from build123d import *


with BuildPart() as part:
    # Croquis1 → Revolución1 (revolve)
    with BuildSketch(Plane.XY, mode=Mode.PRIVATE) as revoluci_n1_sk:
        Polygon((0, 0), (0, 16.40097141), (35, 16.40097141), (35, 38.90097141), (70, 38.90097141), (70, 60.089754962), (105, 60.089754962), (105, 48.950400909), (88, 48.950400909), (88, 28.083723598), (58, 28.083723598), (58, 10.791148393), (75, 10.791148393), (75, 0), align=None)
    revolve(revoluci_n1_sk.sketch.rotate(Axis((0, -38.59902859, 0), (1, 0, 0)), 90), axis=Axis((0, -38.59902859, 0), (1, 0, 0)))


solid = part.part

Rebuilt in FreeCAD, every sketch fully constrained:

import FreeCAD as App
import Part
import Sketcher


def add_polygon(sketch, points):
    """Adds a closed chain of lines whose ends are joined by coincident constraints."""
    first, n = sketch.GeometryCount, len(points)
    for a, b in zip(points, points[1:] + points[:1]):
        sketch.addGeometry(Part.LineSegment(App.Vector(*a, 0), App.Vector(*b, 0)), False)
    for i in range(n):
        sketch.addConstraint(Sketcher.Constraint("Coincident", first + i, 2, first + (i + 1) % n, 1))

doc = App.newDocument("Part")
body = doc.addObject("PartDesign::Body", "Body")

# Sketch on XY plane
sketch1 = body.newObject("Sketcher::SketchObject", "Sketch")
sketch1.AttachmentSupport = (doc.getObject("XY_Plane"), [""])
sketch1.MapMode = "FlatFace"
add_polygon(sketch1, [(0, 16.400971), (0, 0), (75, 0), (75, 10.791148), (58, 10.791148), (58, 28.083724), (88, 28.083724), (88, 48.950401), (105, 48.950401), (105, 60.089755), (70, 60.089755), (70, 38.900971), (35, 38.900971), (35, 16.400971)])  # lines 0-13
sketch1.addGeometry(Part.LineSegment(App.Vector(0, -38.599029, 0), App.Vector(105, -38.599029, 0)), True)  # axis
sketch1.addConstraint(Sketcher.Constraint("Vertical", 0))
sketch1.addConstraint(Sketcher.Constraint("Horizontal", 1))
sketch1.addConstraint(Sketcher.Constraint("Vertical", 2))
sketch1.addConstraint(Sketcher.Constraint("Horizontal", 3))
sketch1.addConstraint(Sketcher.Constraint("Vertical", 4))
sketch1.addConstraint(Sketcher.Constraint("Horizontal", 5))
sketch1.addConstraint(Sketcher.Constraint("Vertical", 6))
sketch1.addConstraint(Sketcher.Constraint("Horizontal", 7))
sketch1.addConstraint(Sketcher.Constraint("Vertical", 8))
sketch1.addConstraint(Sketcher.Constraint("Horizontal", 9))
sketch1.addConstraint(Sketcher.Constraint("Vertical", 10))
sketch1.addConstraint(Sketcher.Constraint("Horizontal", 11))
sketch1.addConstraint(Sketcher.Constraint("Vertical", 12))
sketch1.addConstraint(Sketcher.Constraint("Horizontal", 13))
sketch1.addConstraint(Sketcher.Constraint("Horizontal", 14))
sketch1.addConstraint(Sketcher.Constraint("Coincident", 0, 2, -1, 1))
sketch1.addConstraint(Sketcher.Constraint("PointOnObject", 14, 1, -2))
sketch1.addConstraint(Sketcher.Constraint("Vertical", 8, 2, 14, 2))
sketch1.addConstraint(Sketcher.Constraint("Equal", 3, 7))
sketch1.addConstraint(Sketcher.Constraint("Equal", 9, 11))
sketch1.addConstraint(Sketcher.Constraint("Equal", 11, 13))
sketch1.addConstraint(Sketcher.Constraint("DistanceX", 1, 1, 1, 2, 75.0))
sketch1.addConstraint(Sketcher.Constraint("DistanceX", 3, 2, 3, 1, 17.0))
sketch1.addConstraint(Sketcher.Constraint("DistanceX", 5, 1, 5, 2, 30.0))
sketch1.addConstraint(Sketcher.Constraint("DistanceY", 12, 2, 12, 1, 22.5))
sketch1.addConstraint(Sketcher.Constraint("DistanceY", 14, 1, 13, 2, 55.0))
sketch1.addConstraint(Sketcher.Constraint("DistanceY", 0, 2, 0, 1, 16.400971))
sketch1.addConstraint(Sketcher.Constraint("DistanceY", 2, 1, 2, 2, 10.791148))
sketch1.addConstraint(Sketcher.Constraint("DistanceY", -1, 1, 6, 2, 48.950401))
sketch1.addConstraint(Sketcher.Constraint("DistanceY", 4, 1, 4, 2, 17.292575))
sketch1.addConstraint(Sketcher.Constraint("DistanceY", 8, 1, 8, 2, 11.139354))
revolution = body.newObject("PartDesign::Revolution", "Revolution")
revolution.Profile = sketch1
revolution.ReferenceAxis = (sketch1, ["Axis0"])
revolution.Angle = 360

doc.recompute()
